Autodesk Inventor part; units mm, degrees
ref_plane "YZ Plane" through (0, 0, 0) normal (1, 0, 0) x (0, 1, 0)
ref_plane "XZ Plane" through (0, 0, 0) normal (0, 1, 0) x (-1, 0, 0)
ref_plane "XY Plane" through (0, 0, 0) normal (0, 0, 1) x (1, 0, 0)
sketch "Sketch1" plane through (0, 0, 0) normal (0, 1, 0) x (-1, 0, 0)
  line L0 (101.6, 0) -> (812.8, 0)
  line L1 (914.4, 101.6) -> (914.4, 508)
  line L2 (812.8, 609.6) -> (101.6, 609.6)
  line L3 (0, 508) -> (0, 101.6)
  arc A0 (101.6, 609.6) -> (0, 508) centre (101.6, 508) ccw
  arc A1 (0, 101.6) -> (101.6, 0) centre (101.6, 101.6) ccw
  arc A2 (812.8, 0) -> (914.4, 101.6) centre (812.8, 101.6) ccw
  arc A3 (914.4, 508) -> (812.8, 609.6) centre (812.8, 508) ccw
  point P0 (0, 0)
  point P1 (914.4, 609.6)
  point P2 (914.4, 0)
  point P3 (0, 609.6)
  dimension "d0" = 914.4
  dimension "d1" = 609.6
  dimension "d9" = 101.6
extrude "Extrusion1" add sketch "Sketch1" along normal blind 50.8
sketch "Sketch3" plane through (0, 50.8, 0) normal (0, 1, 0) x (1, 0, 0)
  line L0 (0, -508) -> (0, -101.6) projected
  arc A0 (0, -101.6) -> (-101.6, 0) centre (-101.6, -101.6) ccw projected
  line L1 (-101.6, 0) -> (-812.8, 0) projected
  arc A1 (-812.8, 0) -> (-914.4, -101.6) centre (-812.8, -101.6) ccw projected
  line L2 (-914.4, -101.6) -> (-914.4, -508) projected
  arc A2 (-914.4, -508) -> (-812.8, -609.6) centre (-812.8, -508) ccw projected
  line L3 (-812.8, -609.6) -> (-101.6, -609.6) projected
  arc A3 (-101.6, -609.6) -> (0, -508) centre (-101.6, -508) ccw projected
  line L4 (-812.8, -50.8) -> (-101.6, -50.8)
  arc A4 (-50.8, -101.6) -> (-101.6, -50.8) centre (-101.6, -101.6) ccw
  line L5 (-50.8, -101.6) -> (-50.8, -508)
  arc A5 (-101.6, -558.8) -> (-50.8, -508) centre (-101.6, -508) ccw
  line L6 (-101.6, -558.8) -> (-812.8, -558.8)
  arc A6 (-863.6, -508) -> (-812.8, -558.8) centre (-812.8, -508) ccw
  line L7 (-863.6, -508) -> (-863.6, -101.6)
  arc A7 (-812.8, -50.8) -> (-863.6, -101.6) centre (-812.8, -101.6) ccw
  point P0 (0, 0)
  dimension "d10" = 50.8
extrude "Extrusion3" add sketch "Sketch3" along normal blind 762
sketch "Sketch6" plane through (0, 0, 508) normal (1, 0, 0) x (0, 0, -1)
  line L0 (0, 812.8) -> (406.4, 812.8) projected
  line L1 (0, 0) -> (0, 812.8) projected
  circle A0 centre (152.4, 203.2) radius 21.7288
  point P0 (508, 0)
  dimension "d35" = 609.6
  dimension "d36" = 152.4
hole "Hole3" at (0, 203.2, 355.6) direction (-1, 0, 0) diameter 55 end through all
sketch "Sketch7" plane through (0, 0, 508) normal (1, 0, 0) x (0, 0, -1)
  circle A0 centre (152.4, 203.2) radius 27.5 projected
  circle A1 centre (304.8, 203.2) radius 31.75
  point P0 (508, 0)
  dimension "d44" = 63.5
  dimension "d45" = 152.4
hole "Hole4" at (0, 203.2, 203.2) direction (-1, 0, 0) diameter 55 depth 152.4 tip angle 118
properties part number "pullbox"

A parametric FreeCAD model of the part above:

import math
import FreeCAD as App
import Part
import Sketcher
Q = App.Units.Quantity

doc = App.newDocument("Part")
body = doc.addObject("PartDesign::Body", "Body")

# Sketch on XZ plane
sketch1 = doc.addObject("Sketcher::SketchObject", "Sketch")
body.addObject(sketch1)
sketch1.AttachmentSupport = (doc.XZ_Plane, [""])
sketch1.MapMode = "FlatFace"
sketch1.addGeometry(Part.ArcOfCircle(Part.Circle(App.Vector(-102, 102, 0), App.Vector(0, 0, 1), 102), math.radians(-90), math.radians(0)), False)
sketch1.addGeometry(Part.LineSegment(App.Vector(-102, 0, 0), App.Vector(-813, 0, 0)), False)
sketch1.addGeometry(Part.ArcOfCircle(Part.Circle(App.Vector(-813, 102, 0), App.Vector(0, 0, 1), 102), math.radians(180), math.radians(270)), False)
sketch1.addGeometry(Part.LineSegment(App.Vector(-914, 102, 0), App.Vector(-914, 508, 0)), False)
sketch1.addGeometry(Part.ArcOfCircle(Part.Circle(App.Vector(-813, 508, 0), App.Vector(0, 0, 1), 102), math.radians(90), math.radians(180)), False)
sketch1.addGeometry(Part.LineSegment(App.Vector(-813, 610, 0), App.Vector(-102, 610, 0)), False)
sketch1.addGeometry(Part.ArcOfCircle(Part.Circle(App.Vector(-102, 508, 0), App.Vector(0, 0, 1), 102), math.radians(0), math.radians(90)), False)
sketch1.addGeometry(Part.LineSegment(App.Vector(0, 508, 0), App.Vector(0, 102, 0)), False)
sketch1.addConstraint(Sketcher.Constraint("Tangent", 0, 1, 1, 1))
sketch1.addConstraint(Sketcher.Constraint("Tangent", 1, 2, 2, 2))
sketch1.addConstraint(Sketcher.Constraint("Tangent", 2, 1, 3, 1))
sketch1.addConstraint(Sketcher.Constraint("Tangent", 3, 2, 4, 2))
sketch1.addConstraint(Sketcher.Constraint("Tangent", 4, 1, 5, 1))
sketch1.addConstraint(Sketcher.Constraint("Tangent", 5, 2, 6, 2))
sketch1.addConstraint(Sketcher.Constraint("Tangent", 6, 1, 7, 1))
sketch1.addConstraint(Sketcher.Constraint("Tangent", 7, 2, 0, 2))
sketch1.addConstraint(Sketcher.Constraint("Horizontal", 1))
sketch1.addConstraint(Sketcher.Constraint("Vertical", 3))
sketch1.addConstraint(Sketcher.Constraint("Horizontal", 5))
sketch1.addConstraint(Sketcher.Constraint("Vertical", 7))
sketch1.addConstraint(Sketcher.Constraint("Equal", 0, 2))
sketch1.addConstraint(Sketcher.Constraint("Equal", 2, 4))
sketch1.addConstraint(Sketcher.Constraint("Equal", 4, 6))
sketch1.addConstraint(Sketcher.Constraint("PointOnObject", 0, 1, -1))
sketch1.addConstraint(Sketcher.Constraint("PointOnObject", 6, 1, -2))
sketch1.addConstraint(Sketcher.Constraint("Radius", 0, Q("4 in")))
sketch1.addConstraint(Sketcher.Constraint("DistanceX", 2, 1, -1, 1, Q("36 in")))
sketch1.addConstraint(Sketcher.Constraint("DistanceY", -1, 1, 4, 1, Q("24 in")))
pad1 = doc.addObject("PartDesign::Pad", "Pad")
body.addObject(pad1)
pad1.Profile = sketch1
pad1.Length = Q("2 in")
pad1.Reversed = True

# Sketch on XZ plane
sketch2 = doc.addObject("Sketcher::SketchObject", "Sketch001")
body.addObject(sketch2)
sketch2.AttachmentSupport = (doc.XZ_Plane, [""])
sketch2.MapMode = "FlatFace"
sketch2.AttachmentOffset = App.Placement(App.Vector(0, 0, -2 * 25.4), App.Rotation())
sketch2.addGeometry(Part.ArcOfCircle(Part.Circle(App.Vector(-102, 508, 0), App.Vector(0, 0, 1), 102), math.radians(0), math.radians(90)), False)
sketch2.addGeometry(Part.LineSegment(App.Vector(0, 508, 0), App.Vector(0, 102, 0)), False)
sketch2.addGeometry(Part.ArcOfCircle(Part.Circle(App.Vector(-102, 102, 0), App.Vector(0, 0, 1), 102), math.radians(-90), math.radians(0)), False)
sketch2.addGeometry(Part.LineSegment(App.Vector(-102, 0, 0), App.Vector(-813, 0, 0)), False)
sketch2.addGeometry(Part.ArcOfCircle(Part.Circle(App.Vector(-813, 102, 0), App.Vector(0, 0, 1), 102), math.radians(180), math.radians(270)), False)
sketch2.addGeometry(Part.LineSegment(App.Vector(-914, 102, 0), App.Vector(-914, 508, 0)), False)
sketch2.addGeometry(Part.ArcOfCircle(Part.Circle(App.Vector(-813, 508, 0), App.Vector(0, 0, 1), 102), math.radians(90), math.radians(180)), False)
sketch2.addGeometry(Part.LineSegment(App.Vector(-813, 610, 0), App.Vector(-102, 610, 0)), False)
sketch2.addGeometry(Part.ArcOfCircle(Part.Circle(App.Vector(-813, 102, 0), App.Vector(0, 0, 1), 51), math.radians(180), math.radians(270)), False)
sketch2.addGeometry(Part.LineSegment(App.Vector(-813, 51, 0), App.Vector(-102, 51, 0)), False)
sketch2.addGeometry(Part.ArcOfCircle(Part.Circle(App.Vector(-102, 102, 0), App.Vector(0, 0, 1), 51), math.radians(-90), math.radians(0)), False)
sketch2.addGeometry(Part.LineSegment(App.Vector(-51, 102, 0), App.Vector(-51, 508, 0)), False)
sketch2.addGeometry(Part.ArcOfCircle(Part.Circle(App.Vector(-102, 508, 0), App.Vector(0, 0, 1), 51), math.radians(0), math.radians(90)), False)
sketch2.addGeometry(Part.LineSegment(App.Vector(-102, 559, 0), App.Vector(-813, 559, 0)), False)
sketch2.addGeometry(Part.ArcOfCircle(Part.Circle(App.Vector(-813, 508, 0), App.Vector(0, 0, 1), 51), math.radians(90), math.radians(180)), False)
sketch2.addGeometry(Part.LineSegment(App.Vector(-864, 508, 0), App.Vector(-864, 102, 0)), False)
sketch2.addConstraint(Sketcher.Constraint("Tangent", 0, 1, 1, 1))
sketch2.addConstraint(Sketcher.Constraint("Tangent", 1, 2, 2, 2))
sketch2.addConstraint(Sketcher.Constraint("Tangent", 2, 1, 3, 1))
sketch2.addConstraint(Sketcher.Constraint("Tangent", 3, 2, 4, 2))
sketch2.addConstraint(Sketcher.Constraint("Tangent", 4, 1, 5, 1))
sketch2.addConstraint(Sketcher.Constraint("Tangent", 5, 2, 6, 2))
sketch2.addConstraint(Sketcher.Constraint("Tangent", 6, 1, 7, 1))
sketch2.addConstraint(Sketcher.Constraint("Tangent", 7, 2, 0, 2))
sketch2.addConstraint(Sketcher.Constraint("Tangent", 8, 2, 9, 1))
sketch2.addConstraint(Sketcher.Constraint("Tangent", 9, 2, 10, 1))
sketch2.addConstraint(Sketcher.Constraint("Tangent", 10, 2, 11, 1))
sketch2.addConstraint(Sketcher.Constraint("Tangent", 11, 2, 12, 1))
sketch2.addConstraint(Sketcher.Constraint("Tangent", 12, 2, 13, 1))
sketch2.addConstraint(Sketcher.Constraint("Tangent", 13, 2, 14, 1))
sketch2.addConstraint(Sketcher.Constraint("Tangent", 14, 2, 15, 1))
sketch2.addConstraint(Sketcher.Constraint("Tangent", 15, 2, 8, 1))
sketch2.addConstraint(Sketcher.Constraint("Vertical", 1))
sketch2.addConstraint(Sketcher.Constraint("Horizontal", 3))
sketch2.addConstraint(Sketcher.Constraint("Vertical", 5))
sketch2.addConstraint(Sketcher.Constraint("Horizontal", 7))
sketch2.addConstraint(Sketcher.Constraint("Horizontal", 9))
sketch2.addConstraint(Sketcher.Constraint("Vertical", 11))
sketch2.addConstraint(Sketcher.Constraint("Horizontal", 13))
sketch2.addConstraint(Sketcher.Constraint("Vertical", 15))
sketch2.addConstraint(Sketcher.Constraint("Coincident", 8, 3, 4, 3))
sketch2.addConstraint(Sketcher.Constraint("Coincident", 10, 3, 2, 3))
sketch2.addConstraint(Sketcher.Constraint("Coincident", 12, 3, 0, 3))
sketch2.addConstraint(Sketcher.Constraint("Equal", 0, 2))
sketch2.addConstraint(Sketcher.Constraint("Equal", 2, 4))
sketch2.addConstraint(Sketcher.Constraint("Equal", 4, 6))
sketch2.addConstraint(Sketcher.Constraint("Equal", 12, 14))
sketch2.addConstraint(Sketcher.Constraint("PointOnObject", 0, 1, -2))
sketch2.addConstraint(Sketcher.Constraint("PointOnObject", 2, 1, -1))
sketch2.addConstraint(Sketcher.Constraint("Radius", 8, Q("2 in")))
sketch2.addConstraint(Sketcher.Constraint("DistanceY", -1, 1, 8, 2, Q("2 in")))
sketch2.addConstraint(Sketcher.Constraint("DistanceX", 3, 2, 3, 1, Q("28 in")))
sketch2.addConstraint(Sketcher.Constraint("DistanceY", 1, 2, 1, 1, Q("16 in")))
pad2 = doc.addObject("PartDesign::Pad", "Pad001")
body.addObject(pad2)
pad2.Profile = sketch2
pad2.Length = Q("30 in")
pad2.Reversed = True

# Sketch on YZ plane
sketch3 = doc.addObject("Sketcher::SketchObject", "Sketch002")
body.addObject(sketch3)
sketch3.AttachmentSupport = (doc.YZ_Plane, [""])
sketch3.MapMode = "FlatFace"
sketch3.addGeometry(Part.Circle(App.Vector(203, 356, 0), App.Vector(0, 0, 1), 28), False)
sketch3.addConstraint(Sketcher.Constraint("DistanceX", -1, 1, 0, 3, Q("8 in")))
sketch3.addConstraint(Sketcher.Constraint("DistanceY", -1, 1, 0, 3, Q("14 in")))
sketch3.addConstraint(Sketcher.Constraint("Diameter", 0, 55.0))
doc.recompute()
hole = doc.addObject("PartDesign::Hole", "Hole")
body.addObject(hole)
hole.Profile = sketch3
hole.ThreadType = "None"
hole.Diameter = 55
hole.DepthType = "ThroughAll"

# Sketch on YZ plane
sketch4 = doc.addObject("Sketcher::SketchObject", "Sketch003")
body.addObject(sketch4)
sketch4.AttachmentSupport = (doc.YZ_Plane, [""])
sketch4.MapMode = "FlatFace"
sketch4.addGeometry(Part.Circle(App.Vector(203, 203, 0), App.Vector(0, 0, 1), 28), False)
sketch4.addConstraint(Sketcher.Constraint("DistanceX", -1, 1, 0, 3, Q("8 in")))
sketch4.addConstraint(Sketcher.Constraint("DistanceY", -1, 1, 0, 3, Q("8 in")))
sketch4.addConstraint(Sketcher.Constraint("Diameter", 0, 55.0))
doc.recompute()
hole2 = doc.addObject("PartDesign::Hole", "Hole001")
body.addObject(hole2)
hole2.Profile = sketch4
hole2.ThreadType = "None"
hole2.Diameter = 55
hole2.DepthType = "Dimension"
hole2.Depth = Q("6 in")
hole2.DrillPoint = "Angled"
hole2.DrillPointAngle = 118

doc.recompute()
